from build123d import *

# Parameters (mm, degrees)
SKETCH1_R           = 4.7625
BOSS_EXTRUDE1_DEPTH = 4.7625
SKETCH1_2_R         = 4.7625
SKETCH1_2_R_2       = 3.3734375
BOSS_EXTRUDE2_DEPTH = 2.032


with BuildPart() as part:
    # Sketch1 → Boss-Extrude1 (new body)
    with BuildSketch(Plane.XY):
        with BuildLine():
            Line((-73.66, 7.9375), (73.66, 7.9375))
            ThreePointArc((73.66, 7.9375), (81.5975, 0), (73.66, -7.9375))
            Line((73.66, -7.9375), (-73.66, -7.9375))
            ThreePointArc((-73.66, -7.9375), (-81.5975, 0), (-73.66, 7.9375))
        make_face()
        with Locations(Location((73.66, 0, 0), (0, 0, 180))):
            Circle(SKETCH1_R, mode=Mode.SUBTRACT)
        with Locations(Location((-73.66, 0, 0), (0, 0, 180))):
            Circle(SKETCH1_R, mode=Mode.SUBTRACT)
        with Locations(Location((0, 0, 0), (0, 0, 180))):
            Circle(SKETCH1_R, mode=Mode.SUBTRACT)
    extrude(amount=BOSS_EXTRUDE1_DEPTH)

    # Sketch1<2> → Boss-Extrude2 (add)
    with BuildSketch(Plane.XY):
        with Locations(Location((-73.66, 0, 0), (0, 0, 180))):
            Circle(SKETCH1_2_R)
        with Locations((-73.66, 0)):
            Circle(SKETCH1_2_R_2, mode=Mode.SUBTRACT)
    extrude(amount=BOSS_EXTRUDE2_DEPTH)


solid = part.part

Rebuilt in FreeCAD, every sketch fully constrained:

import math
import FreeCAD as App
import Part
import Sketcher
Q = App.Units.Quantity

doc = App.newDocument("Part")
body = doc.addObject("PartDesign::Body", "Body")

sketch1 = doc.addObject("Sketcher::SketchObject", "Sketch")
body.addObject(sketch1)
sketch1.AttachmentSupport = (doc.XY_Plane, [""])
sketch1.MapMode = "FlatFace"
sketch1.addGeometry([
    Part.LineSegment(App.Vector(73.66, 7.9375, 0), App.Vector(-73.66, 7.9375, 0)),
    Part.ArcOfCircle(Part.Circle(App.Vector(-73.66, 0, 0), App.Vector(0, 0, 1), 7.9375), math.radians(90), math.radians(270)),
    Part.LineSegment(App.Vector(-73.66, -7.9375, 0), App.Vector(73.66, -7.9375, 0)),
    Part.ArcOfCircle(Part.Circle(App.Vector(73.66, 0, 0), App.Vector(0, 0, 1), 7.9375), math.radians(-90), math.radians(90)),
    Part.Circle(App.Vector(73.66, 0, 0), App.Vector(0, 0, 1), 4.7625),
    Part.Circle(App.Vector(0, 0, 0), App.Vector(0, 0, 1), 4.7625),
    Part.Circle(App.Vector(-73.66, 0, 0), App.Vector(0, 0, 1), 4.7625),
], False)
sketch1.addConstraint([
    Sketcher.Constraint("Tangent", 0, 2, 1, 1),
    Sketcher.Constraint("Tangent", 1, 2, 2, 1),
    Sketcher.Constraint("Tangent", 2, 2, 3, 1),
    Sketcher.Constraint("Tangent", 3, 2, 0, 1),
    Sketcher.Constraint("Horizontal", 0),
    Sketcher.Constraint("Horizontal", 2),
    Sketcher.Constraint("Coincident", 5, 3, -1, 1),
    Sketcher.Constraint("Coincident", 4, 3, 3, 3),
    Sketcher.Constraint("Coincident", 6, 3, 1, 3),
    Sketcher.Constraint("Equal", 4, 5),
    Sketcher.Constraint("Equal", 5, 6),
    Sketcher.Constraint("Symmetric", 1, 3, 3, 3, -1, 1),
    Sketcher.Constraint("Diameter", 4, Q("0.375 in")),
    Sketcher.Constraint("DistanceX", 0, 2, 0, 1, Q("5.8 in")),
    Sketcher.Constraint("Radius", 1, Q("0.3125 in")),
])
pad1 = doc.addObject("PartDesign::Pad", "Pad")
body.addObject(pad1)
pad1.Profile = sketch1
pad1.Length = Q("0.1875 in")

sketch2 = doc.addObject("Sketcher::SketchObject", "Sketch001")
body.addObject(sketch2)
sketch2.AttachmentSupport = (doc.XY_Plane, [""])
sketch2.MapMode = "FlatFace"
sketch2.addGeometry([
    Part.Circle(App.Vector(-73.66, 0, 0), App.Vector(0, 0, 1), 4.7625),
    Part.Circle(App.Vector(-73.66, 0, 0), App.Vector(0, 0, 1), 3.373438),
], False)
sketch2.addConstraint([
    Sketcher.Constraint("Coincident", 1, 3, 0, 3),
    Sketcher.Constraint("PointOnObject", 0, 3, -1),
    Sketcher.Constraint("Diameter", 0, Q("0.375 in")),
    Sketcher.Constraint("Diameter", 1, Q("0.265625 in")),
    Sketcher.Constraint("DistanceX", 0, 3, -1, 1, Q("2.9 in")),
])
pad2 = doc.addObject("PartDesign::Pad", "Pad001")
body.addObject(pad2)
pad2.Profile = sketch2
pad2.Length = Q("0.08 in")

doc.recompute()
